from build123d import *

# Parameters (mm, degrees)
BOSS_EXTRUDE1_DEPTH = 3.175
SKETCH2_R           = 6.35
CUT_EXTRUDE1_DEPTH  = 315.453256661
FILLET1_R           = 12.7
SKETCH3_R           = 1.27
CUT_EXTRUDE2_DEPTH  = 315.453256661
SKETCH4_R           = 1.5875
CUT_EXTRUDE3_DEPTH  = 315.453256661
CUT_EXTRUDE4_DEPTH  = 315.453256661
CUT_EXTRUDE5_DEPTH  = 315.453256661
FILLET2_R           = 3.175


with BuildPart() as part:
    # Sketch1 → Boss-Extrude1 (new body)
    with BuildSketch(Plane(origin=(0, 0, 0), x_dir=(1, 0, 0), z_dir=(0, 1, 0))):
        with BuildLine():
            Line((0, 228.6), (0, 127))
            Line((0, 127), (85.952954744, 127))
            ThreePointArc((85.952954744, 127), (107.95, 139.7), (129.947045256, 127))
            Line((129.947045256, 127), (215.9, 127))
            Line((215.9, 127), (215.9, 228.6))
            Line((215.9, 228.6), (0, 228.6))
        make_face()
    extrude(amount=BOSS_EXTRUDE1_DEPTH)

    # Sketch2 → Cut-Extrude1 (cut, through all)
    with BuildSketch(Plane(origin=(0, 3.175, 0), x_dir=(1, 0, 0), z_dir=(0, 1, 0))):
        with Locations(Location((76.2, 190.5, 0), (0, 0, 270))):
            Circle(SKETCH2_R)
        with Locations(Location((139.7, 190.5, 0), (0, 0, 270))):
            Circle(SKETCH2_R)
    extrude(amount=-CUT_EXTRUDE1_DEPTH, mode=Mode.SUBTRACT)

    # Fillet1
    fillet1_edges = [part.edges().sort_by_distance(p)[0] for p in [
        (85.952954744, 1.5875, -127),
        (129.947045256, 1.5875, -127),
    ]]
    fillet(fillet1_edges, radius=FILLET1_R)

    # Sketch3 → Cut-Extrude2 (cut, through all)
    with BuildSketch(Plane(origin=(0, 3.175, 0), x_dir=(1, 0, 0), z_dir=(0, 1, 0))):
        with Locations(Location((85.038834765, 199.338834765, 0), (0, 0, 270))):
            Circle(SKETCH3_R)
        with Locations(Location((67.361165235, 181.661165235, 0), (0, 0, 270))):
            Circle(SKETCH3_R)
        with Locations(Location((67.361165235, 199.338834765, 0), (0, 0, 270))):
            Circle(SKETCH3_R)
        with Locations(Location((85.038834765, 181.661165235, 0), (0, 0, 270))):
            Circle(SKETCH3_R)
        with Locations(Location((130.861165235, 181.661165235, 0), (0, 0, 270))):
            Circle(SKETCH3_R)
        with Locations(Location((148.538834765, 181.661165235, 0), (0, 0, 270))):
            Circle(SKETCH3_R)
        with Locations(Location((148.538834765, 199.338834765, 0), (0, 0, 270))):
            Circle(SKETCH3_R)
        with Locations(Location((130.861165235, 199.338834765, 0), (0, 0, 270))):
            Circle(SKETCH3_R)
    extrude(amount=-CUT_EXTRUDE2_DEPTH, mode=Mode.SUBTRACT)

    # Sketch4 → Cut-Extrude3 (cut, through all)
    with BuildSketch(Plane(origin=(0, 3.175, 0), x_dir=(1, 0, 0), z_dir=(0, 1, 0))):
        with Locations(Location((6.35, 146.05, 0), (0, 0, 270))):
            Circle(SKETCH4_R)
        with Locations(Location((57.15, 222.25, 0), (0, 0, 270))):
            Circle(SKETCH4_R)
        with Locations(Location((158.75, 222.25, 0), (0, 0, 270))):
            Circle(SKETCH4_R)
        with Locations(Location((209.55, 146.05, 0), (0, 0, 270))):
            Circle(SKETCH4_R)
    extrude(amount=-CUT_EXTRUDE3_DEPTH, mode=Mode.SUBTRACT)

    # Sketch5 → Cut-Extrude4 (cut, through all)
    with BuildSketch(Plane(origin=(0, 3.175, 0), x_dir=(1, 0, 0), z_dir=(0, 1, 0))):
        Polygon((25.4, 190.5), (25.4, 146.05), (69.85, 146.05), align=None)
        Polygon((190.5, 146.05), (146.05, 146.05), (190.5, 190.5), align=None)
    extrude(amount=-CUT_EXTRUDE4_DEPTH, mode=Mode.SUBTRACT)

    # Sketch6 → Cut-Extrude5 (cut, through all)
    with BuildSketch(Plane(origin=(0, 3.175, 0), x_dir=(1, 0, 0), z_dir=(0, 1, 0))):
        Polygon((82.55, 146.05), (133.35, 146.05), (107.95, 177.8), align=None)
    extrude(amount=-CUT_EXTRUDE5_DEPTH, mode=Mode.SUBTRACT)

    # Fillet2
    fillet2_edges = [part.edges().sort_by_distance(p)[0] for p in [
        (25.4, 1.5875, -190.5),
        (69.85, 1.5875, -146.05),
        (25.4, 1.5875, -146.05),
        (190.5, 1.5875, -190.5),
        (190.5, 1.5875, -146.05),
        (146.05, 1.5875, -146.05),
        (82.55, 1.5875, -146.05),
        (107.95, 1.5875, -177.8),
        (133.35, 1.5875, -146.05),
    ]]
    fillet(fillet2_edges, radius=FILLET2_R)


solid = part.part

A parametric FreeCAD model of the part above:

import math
import FreeCAD as App
import Part
import Sketcher
from FreeCAD import Vector
Q = App.Units.Quantity


def edges_at(feature, points):
    """Names of the edges that pass closest to the given points."""
    edges = feature.Shape.Edges
    near = lambda p: min(range(len(edges)), key=lambda i: edges[i].distToShape(Part.Vertex(*p))[0])
    return sorted({f"Edge{near(p) + 1}" for p in points})

doc = App.newDocument("Part")
body = doc.addObject("PartDesign::Body", "Body")

sketch1 = body.newObject("Sketcher::SketchObject", "Sketch")
sketch1.AttachmentSupport = (doc.getObject("XZ_Plane"), [""])
sketch1.MapMode = "FlatFace"
sketch1.addGeometry(Part.LineSegment(Vector(0, -229, 0), Vector(0, -127, 0)), False)
sketch1.addGeometry(Part.LineSegment(Vector(0, -127, 0), Vector(86, -127, 0)), False)
sketch1.addGeometry(Part.ArcOfCircle(Part.Circle(Vector(108, -114, 0), Vector(0, 0, 1), 25), math.radians(-150), math.radians(-30)), False)
sketch1.addGeometry(Part.LineSegment(Vector(130, -127, 0), Vector(216, -127, 0)), False)
sketch1.addGeometry(Part.LineSegment(Vector(216, -127, 0), Vector(216, -229, 0)), False)
sketch1.addGeometry(Part.LineSegment(Vector(216, -229, 0), Vector(0, -229, 0)), False)
sketch1.addConstraint(Sketcher.Constraint("Coincident", 0, 2, 1, 1))
sketch1.addConstraint(Sketcher.Constraint("Coincident", 1, 2, 2, 1))
sketch1.addConstraint(Sketcher.Constraint("Coincident", 2, 2, 3, 1))
sketch1.addConstraint(Sketcher.Constraint("Coincident", 3, 2, 4, 1))
sketch1.addConstraint(Sketcher.Constraint("Coincident", 4, 2, 5, 1))
sketch1.addConstraint(Sketcher.Constraint("Coincident", 5, 2, 0, 1))
sketch1.addConstraint(Sketcher.Constraint("Vertical", 0))
sketch1.addConstraint(Sketcher.Constraint("Horizontal", 1))
sketch1.addConstraint(Sketcher.Constraint("Horizontal", 3))
sketch1.addConstraint(Sketcher.Constraint("Vertical", 4))
sketch1.addConstraint(Sketcher.Constraint("Horizontal", 5))
sketch1.addConstraint(Sketcher.Constraint("PointOnObject", 0, 2, -2))
sketch1.addConstraint(Sketcher.Constraint("Horizontal", 1, 2, 2, 2))
sketch1.addConstraint(Sketcher.Constraint("Equal", 1, 3))
sketch1.addConstraint(Sketcher.Constraint("Radius", 2, Q("1 in")))
sketch1.addConstraint(Sketcher.Constraint("DistanceY", 0, 1, 0, 2, Q("4 in")))
sketch1.addConstraint(Sketcher.Constraint("DistanceX", 5, 2, 5, 1, Q("8.5 in")))
sketch1.addConstraint(Sketcher.Constraint("DistanceY", 0, 2, -1, 1, Q("5 in")))
sketch1.addConstraint(Sketcher.Constraint("DistanceY", 2, 3, -1, 1, Q("4.5 in")))
pad1 = body.newObject("PartDesign::Pad", "Pad")
pad1.Profile = sketch1
pad1.Length = Q("0.125 in")
pad1.Reversed = True

sketch2 = body.newObject("Sketcher::SketchObject", "Sketch001")
sketch2.AttachmentSupport = (doc.getObject("XZ_Plane"), [""])
sketch2.MapMode = "FlatFace"
sketch2.AttachmentOffset = App.Placement(Vector(0, 0, -0.125 * 25.4), App.Rotation())
sketch2.addGeometry(Part.Circle(Vector(76, -190, 0), Vector(0, 0, 1), 6), False)
sketch2.addGeometry(Part.Circle(Vector(140, -190, 0), Vector(0, 0, 1), 6), False)
sketch2.addConstraint(Sketcher.Constraint("Equal", 0, 1))
sketch2.addConstraint(Sketcher.Constraint("Horizontal", 0, 3, 1, 3))
sketch2.addConstraint(Sketcher.Constraint("Diameter", 0, Q("0.5 in")))
sketch2.addConstraint(Sketcher.Constraint("DistanceX", -1, 1, 0, 3, Q("3 in")))
sketch2.addConstraint(Sketcher.Constraint("DistanceY", 0, 3, -1, 1, Q("7.5 in")))
sketch2.addConstraint(Sketcher.Constraint("DistanceX", -1, 1, 1, 3, Q("5.5 in")))
pocket1 = body.newObject("PartDesign::Pocket", "Pocket")
pocket1.Profile = sketch2
pocket1.Type = "ThroughAll"
pocket1.Reversed = True
doc.recompute()

fillet = body.newObject("PartDesign::Fillet", "Fillet")
fillet.Base = (pocket1, edges_at(pocket1, [(85.953, 1.587, -127), (129.947, 1.587, -127)]))
fillet.Radius = Q("0.5 in")

sketch3 = body.newObject("Sketcher::SketchObject", "Sketch002")
sketch3.AttachmentSupport = (doc.getObject("XZ_Plane"), [""])
sketch3.MapMode = "FlatFace"
sketch3.AttachmentOffset = App.Placement(Vector(0, 0, -0.125 * 25.4), App.Rotation())
sketch3.addGeometry(Part.Circle(Vector(85, -199.3, 0), Vector(0, 0, 1), 1.3), False)
sketch3.addGeometry(Part.Circle(Vector(67.4, -181.7, 0), Vector(0, 0, 1), 1.3), False)
sketch3.addGeometry(Part.Circle(Vector(67.4, -199.3, 0), Vector(0, 0, 1), 1.3), False)
sketch3.addGeometry(Part.Circle(Vector(85, -181.7, 0), Vector(0, 0, 1), 1.3), False)
sketch3.addGeometry(Part.Circle(Vector(130.9, -181.7, 0), Vector(0, 0, 1), 1.3), False)
sketch3.addGeometry(Part.Circle(Vector(148.5, -181.7, 0), Vector(0, 0, 1), 1.3), False)
sketch3.addGeometry(Part.Circle(Vector(148.5, -199.3, 0), Vector(0, 0, 1), 1.3), False)
sketch3.addGeometry(Part.Circle(Vector(130.9, -199.3, 0), Vector(0, 0, 1), 1.3), False)
sketch3.addConstraint(Sketcher.Constraint("Equal", 0, 1))
sketch3.addConstraint(Sketcher.Constraint("Equal", 1, 2))
sketch3.addConstraint(Sketcher.Constraint("Equal", 2, 3))
sketch3.addConstraint(Sketcher.Constraint("Equal", 3, 4))
sketch3.addConstraint(Sketcher.Constraint("Equal", 4, 5))
sketch3.addConstraint(Sketcher.Constraint("Equal", 5, 6))
sketch3.addConstraint(Sketcher.Constraint("Equal", 6, 7))
sketch3.addConstraint(Sketcher.Constraint("Horizontal", 0, 3, 2, 3))
sketch3.addConstraint(Sketcher.Constraint("Horizontal", 1, 3, 3, 3))
sketch3.addConstraint(Sketcher.Constraint("Horizontal", 3, 3, 4, 3))
sketch3.addConstraint(Sketcher.Constraint("Horizontal", 4, 3, 5, 3))
sketch3.addConstraint(Sketcher.Constraint("Horizontal", 2, 3, 6, 3))
sketch3.addConstraint(Sketcher.Constraint("Horizontal", 6, 3, 7, 3))
sketch3.addConstraint(Sketcher.Constraint("Vertical", 1, 3, 2, 3))
sketch3.addConstraint(Sketcher.Constraint("Vertical", 0, 3, 3, 3))
sketch3.addConstraint(Sketcher.Constraint("Vertical", 5, 3, 6, 3))
sketch3.addConstraint(Sketcher.Constraint("Vertical", 4, 3, 7, 3))
sketch3.addConstraint(Sketcher.Constraint("Diameter", 0, Q("0.1 in")))
sketch3.addConstraint(Sketcher.Constraint("DistanceX", 1, 3, 4, 3, Q("2.5 in")))
sketch3.addConstraint(Sketcher.Constraint("DistanceX", 3, 3, 5, 3, Q("2.5 in")))
sketch3.addConstraint(Sketcher.Constraint("DistanceX", 1, 3, 0, 3, Q("17.67767 mm")))
sketch3.addConstraint(Sketcher.Constraint("DistanceY", 0, 3, 1, 3, Q("17.67767 mm")))
sketch3.addConstraint(Sketcher.Constraint("DistanceX", -1, 1, 0, 3, Q("85.038835 mm")))
sketch3.addConstraint(Sketcher.Constraint("DistanceY", 0, 3, -1, 1, Q("199.338835 mm")))
pocket2 = body.newObject("PartDesign::Pocket", "Pocket001")
pocket2.Profile = sketch3
pocket2.Type = "ThroughAll"
pocket2.Reversed = True

sketch4 = body.newObject("Sketcher::SketchObject", "Sketch003")
sketch4.AttachmentSupport = (doc.getObject("XZ_Plane"), [""])
sketch4.MapMode = "FlatFace"
sketch4.AttachmentOffset = App.Placement(Vector(0, 0, -0.125 * 25.4), App.Rotation())
sketch4.addGeometry(Part.Circle(Vector(6.3, -146.1, 0), Vector(0, 0, 1), 1.6), False)
sketch4.addGeometry(Part.Circle(Vector(57.1, -222.2, 0), Vector(0, 0, 1), 1.6), False)
sketch4.addGeometry(Part.Circle(Vector(158.8, -222.2, 0), Vector(0, 0, 1), 1.6), False)
sketch4.addGeometry(Part.Circle(Vector(209.6, -146.1, 0), Vector(0, 0, 1), 1.6), False)
sketch4.addConstraint(Sketcher.Constraint("Equal", 0, 1))
sketch4.addConstraint(Sketcher.Constraint("Equal", 1, 2))
sketch4.addConstraint(Sketcher.Constraint("Equal", 2, 3))
sketch4.addConstraint(Sketcher.Constraint("Horizontal", 1, 3, 2, 3))
sketch4.addConstraint(Sketcher.Constraint("Horizontal", 0, 3, 3, 3))
sketch4.addConstraint(Sketcher.Constraint("Diameter", 0, Q("0.125 in")))
sketch4.addConstraint(Sketcher.Constraint("DistanceX", 0, 3, 1, 3, Q("2 in")))
sketch4.addConstraint(Sketcher.Constraint("DistanceY", 1, 3, 0, 3, Q("3 in")))
sketch4.addConstraint(Sketcher.Constraint("DistanceX", 1, 3, 2, 3, Q("4 in")))
sketch4.addConstraint(Sketcher.Constraint("DistanceX", 2, 3, 3, 3, Q("2 in")))
sketch4.addConstraint(Sketcher.Constraint("DistanceX", -1, 1, 0, 3, Q("0.25 in")))
sketch4.addConstraint(Sketcher.Constraint("DistanceY", 0, 3, -1, 1, Q("5.75 in")))
pocket3 = body.newObject("PartDesign::Pocket", "Pocket002")
pocket3.Profile = sketch4
pocket3.Type = "ThroughAll"
pocket3.Reversed = True

sketch5 = body.newObject("Sketcher::SketchObject", "Sketch004")
sketch5.AttachmentSupport = (doc.getObject("XZ_Plane"), [""])
sketch5.MapMode = "FlatFace"
sketch5.AttachmentOffset = App.Placement(Vector(0, 0, -0.125 * 25.4), App.Rotation())
sketch5.addGeometry(Part.LineSegment(Vector(25, -190, 0), Vector(25, -146, 0)), False)
sketch5.addGeometry(Part.LineSegment(Vector(25, -146, 0), Vector(70, -146, 0)), False)
sketch5.addGeometry(Part.LineSegment(Vector(70, -146, 0), Vector(25, -190, 0)), False)
sketch5.addGeometry(Part.LineSegment(Vector(146, -146, 0), Vector(190, -146, 0)), False)
sketch5.addGeometry(Part.LineSegment(Vector(190, -146, 0), Vector(190, -190, 0)), False)
sketch5.addGeometry(Part.LineSegment(Vector(190, -190, 0), Vector(146, -146, 0)), False)
sketch5.addConstraint(Sketcher.Constraint("Coincident", 0, 2, 1, 1))
sketch5.addConstraint(Sketcher.Constraint("Coincident", 1, 2, 2, 1))
sketch5.addConstraint(Sketcher.Constraint("Coincident", 2, 2, 0, 1))
sketch5.addConstraint(Sketcher.Constraint("Coincident", 3, 2, 4, 1))
sketch5.addConstraint(Sketcher.Constraint("Coincident", 4, 2, 5, 1))
sketch5.addConstraint(Sketcher.Constraint("Coincident", 5, 2, 3, 1))
sketch5.addConstraint(Sketcher.Constraint("Vertical", 0))
sketch5.addConstraint(Sketcher.Constraint("Horizontal", 1))
sketch5.addConstraint(Sketcher.Constraint("Horizontal", 3))
sketch5.addConstraint(Sketcher.Constraint("Vertical", 4))
sketch5.addConstraint(Sketcher.Constraint("Perpendicular", 2, 5))
sketch5.addConstraint(Sketcher.Constraint("Horizontal", 1, 2, 3, 2))
sketch5.addConstraint(Sketcher.Constraint("Horizontal", 2, 2, 4, 2))
sketch5.addConstraint(Sketcher.Constraint("Equal", 1, 3))
sketch5.addConstraint(Sketcher.Constraint("DistanceX", -1, 1, 0, 2, Q("1 in")))
sketch5.addConstraint(Sketcher.Constraint("DistanceX", 1, 2, 5, 2, Q("3 in")))
sketch5.addConstraint(Sketcher.Constraint("DistanceX", 1, 1, 1, 2, Q("1.75 in")))
sketch5.addConstraint(Sketcher.Constraint("DistanceY", 2, 2, -1, 1, Q("7.5 in")))
pocket4 = body.newObject("PartDesign::Pocket", "Pocket003")
pocket4.Profile = sketch5
pocket4.Type = "ThroughAll"
pocket4.Reversed = True

sketch6 = body.newObject("Sketcher::SketchObject", "Sketch005")
sketch6.AttachmentSupport = (doc.getObject("XZ_Plane"), [""])
sketch6.MapMode = "FlatFace"
sketch6.AttachmentOffset = App.Placement(Vector(0, 0, -0.125 * 25.4), App.Rotation())
sketch6.addGeometry(Part.LineSegment(Vector(83, -146, 0), Vector(133, -146, 0)), False)
sketch6.addGeometry(Part.LineSegment(Vector(133, -146, 0), Vector(108, -178, 0)), False)
sketch6.addGeometry(Part.LineSegment(Vector(108, -178, 0), Vector(83, -146, 0)), False)
sketch6.addConstraint(Sketcher.Constraint("Coincident", 0, 2, 1, 1))
sketch6.addConstraint(Sketcher.Constraint("Coincident", 1, 2, 2, 1))
sketch6.addConstraint(Sketcher.Constraint("Coincident", 2, 2, 0, 1))
sketch6.addConstraint(Sketcher.Constraint("Horizontal", 0))
sketch6.addConstraint(Sketcher.Constraint("Equal", 1, 2))
sketch6.addConstraint(Sketcher.Constraint("DistanceX", 0, 1, 0, 2, Q("2 in")))
sketch6.addConstraint(Sketcher.Constraint("DistanceY", 1, 2, -1, 1, Q("7 in")))
sketch6.addConstraint(Sketcher.Constraint("DistanceX", -1, 1, 0, 2, Q("5.25 in")))
sketch6.addConstraint(Sketcher.Constraint("DistanceY", 0, 2, -1, 1, Q("5.75 in")))
pocket5 = body.newObject("PartDesign::Pocket", "Pocket004")
pocket5.Profile = sketch6
pocket5.Type = "ThroughAll"
pocket5.Reversed = True
doc.recompute()

fillet2 = body.newObject("PartDesign::Fillet", "Fillet001")
fillet2.Base = (pocket5, edges_at(pocket5, [
    (25.4, 1.587, -190.5),
    (69.85, 1.587, -146.05),
    (25.4, 1.587, -146.05),
    (190.5, 1.587, -190.5),
    (190.5, 1.587, -146.05),
    (146.05, 1.587, -146.05),
    (82.55, 1.587, -146.05),
    (107.95, 1.587, -177.8),
    (133.35, 1.587, -146.05),
]))
fillet2.Radius = Q("0.125 in")

doc.recompute()
